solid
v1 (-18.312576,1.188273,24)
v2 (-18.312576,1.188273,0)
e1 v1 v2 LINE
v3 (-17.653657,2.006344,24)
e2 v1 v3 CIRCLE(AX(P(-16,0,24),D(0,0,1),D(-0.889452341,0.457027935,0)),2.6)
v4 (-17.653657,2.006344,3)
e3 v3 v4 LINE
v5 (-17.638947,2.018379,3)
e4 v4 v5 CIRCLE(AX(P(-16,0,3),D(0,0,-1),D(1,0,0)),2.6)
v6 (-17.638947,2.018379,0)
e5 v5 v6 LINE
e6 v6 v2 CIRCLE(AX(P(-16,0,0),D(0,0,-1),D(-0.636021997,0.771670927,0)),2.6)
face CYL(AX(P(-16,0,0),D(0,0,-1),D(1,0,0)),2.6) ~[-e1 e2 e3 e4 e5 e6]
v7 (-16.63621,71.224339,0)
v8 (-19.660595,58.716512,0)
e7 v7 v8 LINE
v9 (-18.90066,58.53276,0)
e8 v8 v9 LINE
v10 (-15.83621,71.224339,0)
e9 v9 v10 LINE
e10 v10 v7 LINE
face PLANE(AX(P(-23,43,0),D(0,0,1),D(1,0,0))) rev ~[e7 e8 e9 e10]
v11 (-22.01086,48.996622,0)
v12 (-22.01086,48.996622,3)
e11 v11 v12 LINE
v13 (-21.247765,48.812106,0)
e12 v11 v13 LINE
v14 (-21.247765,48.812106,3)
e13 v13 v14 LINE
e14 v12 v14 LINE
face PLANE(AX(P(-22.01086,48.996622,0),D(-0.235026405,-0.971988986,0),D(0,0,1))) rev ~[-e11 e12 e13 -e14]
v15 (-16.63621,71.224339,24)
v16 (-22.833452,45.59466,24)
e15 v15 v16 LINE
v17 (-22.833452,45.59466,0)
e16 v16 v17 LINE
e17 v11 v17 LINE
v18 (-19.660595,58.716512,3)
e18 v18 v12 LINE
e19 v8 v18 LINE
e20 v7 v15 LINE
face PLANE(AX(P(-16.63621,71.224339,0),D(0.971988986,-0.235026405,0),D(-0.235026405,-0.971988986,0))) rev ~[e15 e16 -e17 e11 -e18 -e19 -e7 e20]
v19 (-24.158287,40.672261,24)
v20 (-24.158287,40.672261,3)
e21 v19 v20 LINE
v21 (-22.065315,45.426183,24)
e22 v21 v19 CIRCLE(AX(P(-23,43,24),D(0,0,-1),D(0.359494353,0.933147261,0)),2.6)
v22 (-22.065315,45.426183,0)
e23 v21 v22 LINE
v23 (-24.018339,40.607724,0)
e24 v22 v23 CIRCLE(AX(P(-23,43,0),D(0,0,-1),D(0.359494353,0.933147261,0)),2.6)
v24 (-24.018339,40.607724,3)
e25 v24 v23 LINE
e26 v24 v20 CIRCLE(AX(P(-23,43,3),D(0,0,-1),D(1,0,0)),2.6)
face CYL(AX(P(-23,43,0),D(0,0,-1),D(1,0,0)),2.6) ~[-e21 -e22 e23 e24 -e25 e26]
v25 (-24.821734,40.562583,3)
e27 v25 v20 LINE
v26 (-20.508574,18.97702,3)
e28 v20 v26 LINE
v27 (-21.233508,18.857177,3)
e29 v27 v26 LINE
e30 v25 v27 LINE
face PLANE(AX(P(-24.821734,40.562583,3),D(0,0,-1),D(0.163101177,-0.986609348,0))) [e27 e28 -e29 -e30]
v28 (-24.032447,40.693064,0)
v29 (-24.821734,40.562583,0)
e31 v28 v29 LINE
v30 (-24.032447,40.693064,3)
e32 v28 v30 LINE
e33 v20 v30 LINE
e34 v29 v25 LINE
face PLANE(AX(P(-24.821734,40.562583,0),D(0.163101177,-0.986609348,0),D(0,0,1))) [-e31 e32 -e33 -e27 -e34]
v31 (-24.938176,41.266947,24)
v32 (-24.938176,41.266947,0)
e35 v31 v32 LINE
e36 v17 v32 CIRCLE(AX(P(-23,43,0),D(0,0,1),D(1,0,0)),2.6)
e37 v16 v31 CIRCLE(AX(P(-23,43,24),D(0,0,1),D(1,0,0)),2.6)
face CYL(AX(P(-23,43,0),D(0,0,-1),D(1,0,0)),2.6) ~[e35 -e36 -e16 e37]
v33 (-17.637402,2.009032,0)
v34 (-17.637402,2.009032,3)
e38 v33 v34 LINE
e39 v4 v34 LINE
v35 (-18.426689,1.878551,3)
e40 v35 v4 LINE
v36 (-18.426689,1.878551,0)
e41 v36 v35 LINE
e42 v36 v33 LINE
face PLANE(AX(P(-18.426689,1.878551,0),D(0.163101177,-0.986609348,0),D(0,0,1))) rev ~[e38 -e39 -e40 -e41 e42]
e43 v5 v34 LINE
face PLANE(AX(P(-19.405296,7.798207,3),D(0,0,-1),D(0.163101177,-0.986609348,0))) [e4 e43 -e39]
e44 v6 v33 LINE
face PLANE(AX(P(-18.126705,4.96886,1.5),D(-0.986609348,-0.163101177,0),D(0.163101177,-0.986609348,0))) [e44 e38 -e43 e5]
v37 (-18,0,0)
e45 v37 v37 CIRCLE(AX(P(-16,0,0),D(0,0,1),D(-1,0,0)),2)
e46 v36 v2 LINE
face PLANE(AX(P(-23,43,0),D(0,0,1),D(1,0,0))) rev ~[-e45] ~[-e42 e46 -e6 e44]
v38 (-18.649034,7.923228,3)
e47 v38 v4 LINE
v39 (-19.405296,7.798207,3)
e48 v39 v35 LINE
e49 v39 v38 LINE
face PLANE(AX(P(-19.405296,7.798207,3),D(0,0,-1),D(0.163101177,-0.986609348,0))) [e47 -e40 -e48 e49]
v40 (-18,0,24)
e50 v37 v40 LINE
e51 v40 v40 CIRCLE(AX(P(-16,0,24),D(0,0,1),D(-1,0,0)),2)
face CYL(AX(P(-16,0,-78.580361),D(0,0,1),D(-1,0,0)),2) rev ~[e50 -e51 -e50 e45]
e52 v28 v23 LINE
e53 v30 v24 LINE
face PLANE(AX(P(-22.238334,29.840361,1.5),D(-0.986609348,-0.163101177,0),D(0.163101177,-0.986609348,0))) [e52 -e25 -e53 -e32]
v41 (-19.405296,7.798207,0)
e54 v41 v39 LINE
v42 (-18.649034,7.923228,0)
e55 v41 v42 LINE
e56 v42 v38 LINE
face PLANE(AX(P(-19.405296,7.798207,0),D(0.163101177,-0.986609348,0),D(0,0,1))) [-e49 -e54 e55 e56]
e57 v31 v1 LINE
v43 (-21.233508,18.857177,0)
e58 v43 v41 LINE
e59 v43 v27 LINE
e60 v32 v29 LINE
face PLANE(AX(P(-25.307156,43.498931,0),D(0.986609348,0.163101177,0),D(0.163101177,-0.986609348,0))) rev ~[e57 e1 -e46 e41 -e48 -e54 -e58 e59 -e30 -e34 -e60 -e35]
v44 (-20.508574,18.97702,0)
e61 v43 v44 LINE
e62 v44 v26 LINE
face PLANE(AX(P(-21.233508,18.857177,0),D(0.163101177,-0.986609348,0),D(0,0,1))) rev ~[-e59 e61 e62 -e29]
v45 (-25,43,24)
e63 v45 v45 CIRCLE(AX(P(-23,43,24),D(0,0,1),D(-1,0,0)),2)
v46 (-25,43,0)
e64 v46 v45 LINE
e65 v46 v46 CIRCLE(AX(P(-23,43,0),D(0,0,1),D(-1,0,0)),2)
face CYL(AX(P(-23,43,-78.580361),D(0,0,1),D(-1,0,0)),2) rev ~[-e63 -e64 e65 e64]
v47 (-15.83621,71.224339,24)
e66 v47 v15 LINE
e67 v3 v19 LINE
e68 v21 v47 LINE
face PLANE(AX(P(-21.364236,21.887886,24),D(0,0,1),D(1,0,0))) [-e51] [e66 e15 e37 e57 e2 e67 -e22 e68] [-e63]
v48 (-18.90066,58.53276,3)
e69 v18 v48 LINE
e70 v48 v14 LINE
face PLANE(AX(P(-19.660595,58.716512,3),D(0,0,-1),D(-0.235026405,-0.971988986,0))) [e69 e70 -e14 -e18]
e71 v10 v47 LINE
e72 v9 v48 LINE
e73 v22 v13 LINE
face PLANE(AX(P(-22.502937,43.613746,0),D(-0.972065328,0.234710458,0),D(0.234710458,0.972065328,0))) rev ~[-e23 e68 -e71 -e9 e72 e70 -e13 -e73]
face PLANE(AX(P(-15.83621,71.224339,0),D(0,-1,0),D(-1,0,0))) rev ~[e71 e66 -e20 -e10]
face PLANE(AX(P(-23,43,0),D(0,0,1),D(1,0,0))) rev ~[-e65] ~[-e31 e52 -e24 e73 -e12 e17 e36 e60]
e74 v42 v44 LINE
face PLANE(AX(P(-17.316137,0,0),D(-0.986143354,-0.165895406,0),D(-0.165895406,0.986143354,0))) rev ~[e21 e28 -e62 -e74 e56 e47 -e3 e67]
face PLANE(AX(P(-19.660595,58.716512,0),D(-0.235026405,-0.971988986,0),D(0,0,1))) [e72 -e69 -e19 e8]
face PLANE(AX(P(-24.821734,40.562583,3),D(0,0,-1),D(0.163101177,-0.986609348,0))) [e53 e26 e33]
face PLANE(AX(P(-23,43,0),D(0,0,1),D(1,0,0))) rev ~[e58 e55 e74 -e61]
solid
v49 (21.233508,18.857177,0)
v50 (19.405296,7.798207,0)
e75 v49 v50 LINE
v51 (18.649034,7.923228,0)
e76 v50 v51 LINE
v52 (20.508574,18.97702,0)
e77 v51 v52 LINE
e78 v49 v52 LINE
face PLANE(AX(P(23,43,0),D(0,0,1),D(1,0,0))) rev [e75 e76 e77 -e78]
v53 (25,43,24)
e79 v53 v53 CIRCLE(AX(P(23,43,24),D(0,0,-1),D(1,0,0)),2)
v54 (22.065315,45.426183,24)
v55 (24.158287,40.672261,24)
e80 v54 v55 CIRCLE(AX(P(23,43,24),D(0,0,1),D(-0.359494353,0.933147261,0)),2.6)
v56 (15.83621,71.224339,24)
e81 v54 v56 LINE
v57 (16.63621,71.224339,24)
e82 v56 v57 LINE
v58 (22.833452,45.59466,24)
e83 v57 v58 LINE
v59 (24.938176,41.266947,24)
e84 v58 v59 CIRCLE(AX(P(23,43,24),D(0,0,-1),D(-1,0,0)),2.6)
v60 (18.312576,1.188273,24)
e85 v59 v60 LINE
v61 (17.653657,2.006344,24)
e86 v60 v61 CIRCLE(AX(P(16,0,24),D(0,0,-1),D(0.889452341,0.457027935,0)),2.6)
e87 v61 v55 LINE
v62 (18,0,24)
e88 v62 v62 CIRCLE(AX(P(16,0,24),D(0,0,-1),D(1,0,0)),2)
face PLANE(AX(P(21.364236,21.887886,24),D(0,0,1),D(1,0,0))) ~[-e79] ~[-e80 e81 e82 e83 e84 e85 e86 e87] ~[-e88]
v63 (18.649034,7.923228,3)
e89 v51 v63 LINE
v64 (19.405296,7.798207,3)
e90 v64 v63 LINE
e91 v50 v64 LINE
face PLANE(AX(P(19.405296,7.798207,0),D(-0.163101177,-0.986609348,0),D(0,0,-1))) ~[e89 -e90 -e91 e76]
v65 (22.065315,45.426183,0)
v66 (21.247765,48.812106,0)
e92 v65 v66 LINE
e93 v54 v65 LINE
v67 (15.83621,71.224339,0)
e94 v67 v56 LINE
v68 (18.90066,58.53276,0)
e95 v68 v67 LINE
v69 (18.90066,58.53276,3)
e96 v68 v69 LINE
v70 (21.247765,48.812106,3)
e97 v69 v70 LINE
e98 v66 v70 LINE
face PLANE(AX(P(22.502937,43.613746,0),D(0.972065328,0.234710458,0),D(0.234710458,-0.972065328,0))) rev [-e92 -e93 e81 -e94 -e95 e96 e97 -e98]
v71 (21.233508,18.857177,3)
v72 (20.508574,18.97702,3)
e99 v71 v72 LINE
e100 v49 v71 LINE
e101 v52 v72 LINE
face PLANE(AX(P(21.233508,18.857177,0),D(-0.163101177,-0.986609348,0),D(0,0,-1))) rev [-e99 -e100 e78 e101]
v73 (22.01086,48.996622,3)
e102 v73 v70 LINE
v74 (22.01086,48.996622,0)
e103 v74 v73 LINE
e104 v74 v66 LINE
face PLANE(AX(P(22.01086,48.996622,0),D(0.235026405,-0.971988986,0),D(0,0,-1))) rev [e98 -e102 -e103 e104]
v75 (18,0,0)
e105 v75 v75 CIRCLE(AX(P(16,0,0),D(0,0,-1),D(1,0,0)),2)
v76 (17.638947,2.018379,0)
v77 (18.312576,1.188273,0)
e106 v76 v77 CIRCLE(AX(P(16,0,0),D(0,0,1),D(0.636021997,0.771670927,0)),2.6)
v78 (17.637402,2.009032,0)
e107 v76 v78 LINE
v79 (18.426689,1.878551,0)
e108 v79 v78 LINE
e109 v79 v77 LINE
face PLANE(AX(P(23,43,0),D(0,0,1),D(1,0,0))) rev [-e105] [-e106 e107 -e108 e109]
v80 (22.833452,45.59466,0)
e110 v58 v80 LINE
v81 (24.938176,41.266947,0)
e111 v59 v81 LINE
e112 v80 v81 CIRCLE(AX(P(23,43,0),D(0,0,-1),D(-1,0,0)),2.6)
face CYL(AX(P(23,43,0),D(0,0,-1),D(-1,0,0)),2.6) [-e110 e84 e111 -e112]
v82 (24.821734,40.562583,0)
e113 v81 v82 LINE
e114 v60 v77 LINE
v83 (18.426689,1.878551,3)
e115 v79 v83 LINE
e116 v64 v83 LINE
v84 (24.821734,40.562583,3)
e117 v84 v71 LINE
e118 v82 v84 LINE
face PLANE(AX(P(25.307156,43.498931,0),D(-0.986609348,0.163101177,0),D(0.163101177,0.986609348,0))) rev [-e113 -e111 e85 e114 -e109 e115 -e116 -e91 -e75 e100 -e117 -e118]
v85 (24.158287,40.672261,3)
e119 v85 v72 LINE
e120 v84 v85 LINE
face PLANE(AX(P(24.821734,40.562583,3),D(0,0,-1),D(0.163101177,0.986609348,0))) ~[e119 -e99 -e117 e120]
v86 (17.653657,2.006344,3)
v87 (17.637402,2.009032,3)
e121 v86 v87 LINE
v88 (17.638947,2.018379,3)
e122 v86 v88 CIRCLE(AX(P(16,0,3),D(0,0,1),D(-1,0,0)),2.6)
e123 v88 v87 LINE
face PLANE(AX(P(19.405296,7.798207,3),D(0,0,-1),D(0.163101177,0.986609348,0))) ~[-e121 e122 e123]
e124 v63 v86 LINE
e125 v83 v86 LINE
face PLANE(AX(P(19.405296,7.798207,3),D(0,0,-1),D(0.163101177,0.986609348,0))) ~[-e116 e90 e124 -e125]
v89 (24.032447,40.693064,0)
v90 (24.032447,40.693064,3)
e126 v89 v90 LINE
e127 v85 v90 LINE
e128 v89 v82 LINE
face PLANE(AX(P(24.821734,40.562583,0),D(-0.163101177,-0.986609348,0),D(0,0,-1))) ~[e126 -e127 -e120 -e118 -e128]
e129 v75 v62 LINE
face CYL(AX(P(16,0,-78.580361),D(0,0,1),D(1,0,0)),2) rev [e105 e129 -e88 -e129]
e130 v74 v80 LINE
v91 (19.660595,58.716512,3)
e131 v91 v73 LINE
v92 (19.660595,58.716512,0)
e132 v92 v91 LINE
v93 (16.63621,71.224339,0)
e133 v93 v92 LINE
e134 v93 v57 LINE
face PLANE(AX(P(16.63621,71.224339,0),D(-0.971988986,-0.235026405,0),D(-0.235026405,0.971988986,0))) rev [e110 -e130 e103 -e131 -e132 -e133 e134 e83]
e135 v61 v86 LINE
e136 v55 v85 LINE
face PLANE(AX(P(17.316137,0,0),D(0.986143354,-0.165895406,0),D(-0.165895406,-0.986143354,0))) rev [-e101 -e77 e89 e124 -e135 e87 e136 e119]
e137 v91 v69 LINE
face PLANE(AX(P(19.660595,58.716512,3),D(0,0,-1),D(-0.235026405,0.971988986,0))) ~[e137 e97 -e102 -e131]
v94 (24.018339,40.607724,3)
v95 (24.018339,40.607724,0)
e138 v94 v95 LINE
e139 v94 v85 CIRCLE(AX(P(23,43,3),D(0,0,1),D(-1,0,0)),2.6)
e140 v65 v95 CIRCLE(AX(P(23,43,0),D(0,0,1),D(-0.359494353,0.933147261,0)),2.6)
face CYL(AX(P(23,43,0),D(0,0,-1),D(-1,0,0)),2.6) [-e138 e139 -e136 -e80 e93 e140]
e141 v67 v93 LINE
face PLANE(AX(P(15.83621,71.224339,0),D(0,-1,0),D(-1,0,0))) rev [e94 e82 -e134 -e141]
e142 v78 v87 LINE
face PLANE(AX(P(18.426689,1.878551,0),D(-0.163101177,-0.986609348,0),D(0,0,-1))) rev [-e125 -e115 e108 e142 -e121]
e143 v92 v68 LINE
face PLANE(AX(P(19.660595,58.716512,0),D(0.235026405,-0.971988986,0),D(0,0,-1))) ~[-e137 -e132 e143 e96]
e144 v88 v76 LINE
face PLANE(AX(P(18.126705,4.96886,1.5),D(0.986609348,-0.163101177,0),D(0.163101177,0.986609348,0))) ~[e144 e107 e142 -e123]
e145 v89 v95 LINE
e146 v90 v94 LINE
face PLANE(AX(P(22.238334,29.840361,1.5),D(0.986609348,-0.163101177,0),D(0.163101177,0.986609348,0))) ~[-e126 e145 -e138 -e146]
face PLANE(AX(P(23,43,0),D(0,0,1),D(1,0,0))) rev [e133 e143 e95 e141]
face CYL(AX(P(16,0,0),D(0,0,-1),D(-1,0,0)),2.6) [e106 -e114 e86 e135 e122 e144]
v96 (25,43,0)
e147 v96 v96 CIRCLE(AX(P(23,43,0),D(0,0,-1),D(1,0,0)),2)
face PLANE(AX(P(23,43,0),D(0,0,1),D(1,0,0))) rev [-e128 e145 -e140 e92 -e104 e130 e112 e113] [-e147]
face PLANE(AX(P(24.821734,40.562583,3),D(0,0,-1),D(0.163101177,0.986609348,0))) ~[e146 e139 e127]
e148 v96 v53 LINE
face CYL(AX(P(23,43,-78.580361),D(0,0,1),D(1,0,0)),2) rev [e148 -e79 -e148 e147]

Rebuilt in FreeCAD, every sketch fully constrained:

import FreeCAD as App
import Part
import Sketcher

V = App.Vector
Q = App.Units.Quantity


def add_polygon(sketch, points):
    """Adds a closed chain of lines whose ends are joined by coincident constraints."""
    first, n = sketch.GeometryCount, len(points)
    for a, b in zip(points, points[1:] + points[:1]):
        sketch.addGeometry(Part.LineSegment(App.Vector(*a, 0), App.Vector(*b, 0)), False)
    for i in range(n):
        sketch.addConstraint(Sketcher.Constraint("Coincident", first + i, 2, first + (i + 1) % n, 1))

doc = App.newDocument("Part")
body = doc.addObject("PartDesign::Body", "Body")

# Sketch on XY plane
sketch1 = doc.addObject("Sketcher::SketchObject", "Sketch")
body.addObject(sketch1)
sketch1.AttachmentSupport = (doc.XY_Plane, [""])
sketch1.MapMode = "FlatFace"
sketch1.addGeometry(Part.Circle(V(-23, 43, 0), V(0, 0, 1), 2.6), False)
sketch1.addConstraint([
    Sketcher.Constraint("Diameter", 0, Q("5.2 mm")),
    Sketcher.Constraint("DistanceX", 0, 3, -1, 1, Q("23 mm")),
    Sketcher.Constraint("DistanceY", -1, 1, 0, 3, Q("43 mm")),
])
pad1 = doc.addObject("PartDesign::Pad", "Pad")
body.addObject(pad1)
pad1.Profile = sketch1
pad1.Length = 24
body2 = doc.addObject("PartDesign::Body", "Body001")

# Sketch on XY plane
sketch2 = doc.addObject("Sketcher::SketchObject", "Sketch001")
body2.addObject(sketch2)
sketch2.AttachmentSupport = (doc.getObject("XY_Plane001"), [""])
sketch2.MapMode = "FlatFace"
sketch2.addGeometry(Part.Circle(V(-16, 0, 0), V(0, 0, 1), 2.6), False)
sketch2.addConstraint([
    Sketcher.Constraint("PointOnObject", 0, 3, -1),
    Sketcher.Constraint("Diameter", 0, Q("5.2 mm")),
    Sketcher.Constraint("DistanceX", 0, 3, -1, 1, Q("16 mm")),
])
pad2 = doc.addObject("PartDesign::Pad", "Pad001")
body2.addObject(pad2)
pad2.Profile = sketch2
pad2.Length = 24
body.AllowCompound = True
doc.recompute()

boolean = doc.addObject("PartDesign::Boolean", "Boolean")
body.addObject(boolean)
boolean.Type = "Fuse"
boolean.addObjects([body2])

# Sketch on XY plane
sketch3 = doc.addObject("Sketcher::SketchObject", "Sketch002")
body.addObject(sketch3)
sketch3.AttachmentSupport = (doc.XY_Plane, [""])
sketch3.MapMode = "FlatFace"
add_polygon(sketch3, [(-24.726359, 44.04909), (-25.307156, 43.498931), (-18.116137, 0), (-17.316137, 0)])  # lines 0-3
add_polygon(sketch3, [(-16.63621, 71.224339), (-23.301706, 43.658122), (-22.502937, 43.613746), (-15.83621, 71.224339)])  # lines 4-7
sketch3.addConstraint([
    Sketcher.Constraint("Horizontal", 2),
    Sketcher.Constraint("Horizontal", 7),
    Sketcher.Constraint("PointOnObject", 1, 2, -1),
    Sketcher.Constraint("Equal", 2, 7),
    Sketcher.Constraint("Equal", 0, 5),
    Sketcher.Constraint("DistanceX", 2, 1, 2, 2, Q("0.8 mm")),
    Sketcher.Constraint("Distance", 0, Q("0.8 mm")),
    Sketcher.Constraint("DistanceX", 5, 2, 1, 2, Q("4.3868 mm")),
    Sketcher.Constraint("Distance", 3, Q("44.668039 mm")),
    Sketcher.Constraint("Distance", 6, Q("28.404051 mm")),
    Sketcher.Constraint("DistanceY", -1, 1, 0, 2, Q("43.498931 mm")),
    Sketcher.Constraint("DistanceX", 3, 2, -1, 1, Q("24.726359 mm")),
    Sketcher.Constraint("DistanceY", -1, 1, 3, 2, Q("44.04909 mm")),
    Sketcher.Constraint("DistanceX", 6, 2, -1, 1, Q("15.83621 mm")),
    Sketcher.Constraint("DistanceY", -1, 1, 6, 2, Q("71.224339 mm")),
    Sketcher.Constraint("DistanceX", 0, 2, 4, 2, Q("2.00545 mm")),
])
pad3 = doc.addObject("PartDesign::Pad", "Pad002")
body.addObject(pad3)
pad3.Profile = sketch3
pad3.Length = 24

# Sketch on XY plane
sketch4 = doc.addObject("Sketcher::SketchObject", "Sketch003")
body.addObject(sketch4)
sketch4.AttachmentSupport = (doc.XY_Plane, [""])
sketch4.MapMode = "FlatFace"
sketch4.addGeometry([
    Part.Circle(V(-23, 43, 0), V(0, 0, 1), 2),
    Part.Circle(V(-16, 0, 0), V(0, 0, 1), 2),
], False)
sketch4.addConstraint([
    Sketcher.Constraint("Equal", 0, 1),
    Sketcher.Constraint("PointOnObject", 1, 3, -1),
    Sketcher.Constraint("Diameter", 0, Q("4 mm")),
    Sketcher.Constraint("DistanceX", 0, 3, -1, 1, Q("23 mm")),
    Sketcher.Constraint("DistanceY", -1, 1, 0, 3, Q("43 mm")),
    Sketcher.Constraint("DistanceX", 1, 3, -1, 1, Q("16 mm")),
])
doc.recompute()
hole = doc.addObject("PartDesign::Hole", "Hole")
body.addObject(hole)
hole.Profile = sketch4
hole.ThreadType = "None"
hole.Diameter = 4
hole.DepthType = "ThroughAll"
hole.Reversed = True

# Sketch on an angled plane
sketch5 = doc.addObject("Sketcher::SketchObject", "Sketch004")
body.addObject(sketch5)
sketch5.Placement = App.Placement(V(-17.634212, -2.915197, 0), App.Rotation(V(0.163101177, -0.986609348, 0), V(0, 0, 0.999999999), V(-0.986609348, -0.163101177, 0), "ZXY"))
add_polygon(sketch5, [(-44.067878, 3), (-44.067878, 0), (-22.067878, 0), (-22.067878, 3)])  # lines 0-3
add_polygon(sketch5, [(-10.85881, 3), (-10.85881, 0), (-4.85881, 0), (-4.85881, 3)])  # lines 4-7
sketch5.addConstraint([
    Sketcher.Constraint("Vertical", 0),
    Sketcher.Constraint("Horizontal", 1),
    Sketcher.Constraint("Vertical", 2),
    Sketcher.Constraint("Horizontal", 3),
    Sketcher.Constraint("Vertical", 4),
    Sketcher.Constraint("Horizontal", 5),
    Sketcher.Constraint("Vertical", 6),
    Sketcher.Constraint("Horizontal", 7),
    Sketcher.Constraint("PointOnObject", 0, 2, -1),
    Sketcher.Constraint("PointOnObject", 4, 2, -1),
    Sketcher.Constraint("Horizontal", 3, 2, 6, 2),
    Sketcher.Constraint("DistanceX", 1, 1, 1, 2, Q("22 mm")),
    Sketcher.Constraint("DistanceX", 5, 1, 5, 2, Q("6 mm")),
    Sketcher.Constraint("DistanceY", 0, 2, 0, 1, Q("3 mm")),
    Sketcher.Constraint("DistanceX", 4, 2, -1, 1, Q("10.85881 mm")),
    Sketcher.Constraint("DistanceX", 0, 2, -1, 1, Q("44.067878 mm")),
])
pocket1 = doc.addObject("PartDesign::Pocket", "Pocket")
body.addObject(pocket1)
pocket1.Profile = sketch5
pocket1.Length = 0.8

# Sketch on an angled plane
sketch6 = doc.addObject("Sketcher::SketchObject", "Sketch005")
body.addObject(sketch6)
sketch6.Placement = App.Placement(V(-31.987976, 7.734675, 0), App.Rotation(V(-0.235026405, -0.971988986, 0), V(0, 0, 1), V(-0.971988986, 0.235026405, 0), "ZXY"))
add_polygon(sketch6, [(-52.451043, 3), (-52.451043, 0), (-42.451043, 0), (-42.451043, 3)])  # lines 0-3
sketch6.addConstraint([
    Sketcher.Constraint("Vertical", 0),
    Sketcher.Constraint("Horizontal", 1),
    Sketcher.Constraint("Vertical", 2),
    Sketcher.Constraint("Horizontal", 3),
    Sketcher.Constraint("PointOnObject", 0, 2, -1),
    Sketcher.Constraint("DistanceX", 1, 1, 1, 2, Q("10 mm")),
    Sketcher.Constraint("DistanceY", 0, 2, 0, 1, Q("3 mm")),
    Sketcher.Constraint("DistanceX", 0, 2, -1, 1, Q("52.451043 mm")),
])
pocket2 = doc.addObject("PartDesign::Pocket", "Pocket001")
body.addObject(pocket2)
pocket2.Profile = sketch6
pocket2.Length = 2
body3 = doc.addObject("PartDesign::Body", "Body002")
doc.recompute()

mirroring = doc.addObject("Part::Mirroring", "Mirroring")
mirroring.Source = body
mirroring.Base = V(0, 0, 0)
mirroring.Normal = V(1, 0, 0)
body3.BaseFeature = mirroring
doc.recompute()
mirroring.Visibility = False

doc.recompute()
